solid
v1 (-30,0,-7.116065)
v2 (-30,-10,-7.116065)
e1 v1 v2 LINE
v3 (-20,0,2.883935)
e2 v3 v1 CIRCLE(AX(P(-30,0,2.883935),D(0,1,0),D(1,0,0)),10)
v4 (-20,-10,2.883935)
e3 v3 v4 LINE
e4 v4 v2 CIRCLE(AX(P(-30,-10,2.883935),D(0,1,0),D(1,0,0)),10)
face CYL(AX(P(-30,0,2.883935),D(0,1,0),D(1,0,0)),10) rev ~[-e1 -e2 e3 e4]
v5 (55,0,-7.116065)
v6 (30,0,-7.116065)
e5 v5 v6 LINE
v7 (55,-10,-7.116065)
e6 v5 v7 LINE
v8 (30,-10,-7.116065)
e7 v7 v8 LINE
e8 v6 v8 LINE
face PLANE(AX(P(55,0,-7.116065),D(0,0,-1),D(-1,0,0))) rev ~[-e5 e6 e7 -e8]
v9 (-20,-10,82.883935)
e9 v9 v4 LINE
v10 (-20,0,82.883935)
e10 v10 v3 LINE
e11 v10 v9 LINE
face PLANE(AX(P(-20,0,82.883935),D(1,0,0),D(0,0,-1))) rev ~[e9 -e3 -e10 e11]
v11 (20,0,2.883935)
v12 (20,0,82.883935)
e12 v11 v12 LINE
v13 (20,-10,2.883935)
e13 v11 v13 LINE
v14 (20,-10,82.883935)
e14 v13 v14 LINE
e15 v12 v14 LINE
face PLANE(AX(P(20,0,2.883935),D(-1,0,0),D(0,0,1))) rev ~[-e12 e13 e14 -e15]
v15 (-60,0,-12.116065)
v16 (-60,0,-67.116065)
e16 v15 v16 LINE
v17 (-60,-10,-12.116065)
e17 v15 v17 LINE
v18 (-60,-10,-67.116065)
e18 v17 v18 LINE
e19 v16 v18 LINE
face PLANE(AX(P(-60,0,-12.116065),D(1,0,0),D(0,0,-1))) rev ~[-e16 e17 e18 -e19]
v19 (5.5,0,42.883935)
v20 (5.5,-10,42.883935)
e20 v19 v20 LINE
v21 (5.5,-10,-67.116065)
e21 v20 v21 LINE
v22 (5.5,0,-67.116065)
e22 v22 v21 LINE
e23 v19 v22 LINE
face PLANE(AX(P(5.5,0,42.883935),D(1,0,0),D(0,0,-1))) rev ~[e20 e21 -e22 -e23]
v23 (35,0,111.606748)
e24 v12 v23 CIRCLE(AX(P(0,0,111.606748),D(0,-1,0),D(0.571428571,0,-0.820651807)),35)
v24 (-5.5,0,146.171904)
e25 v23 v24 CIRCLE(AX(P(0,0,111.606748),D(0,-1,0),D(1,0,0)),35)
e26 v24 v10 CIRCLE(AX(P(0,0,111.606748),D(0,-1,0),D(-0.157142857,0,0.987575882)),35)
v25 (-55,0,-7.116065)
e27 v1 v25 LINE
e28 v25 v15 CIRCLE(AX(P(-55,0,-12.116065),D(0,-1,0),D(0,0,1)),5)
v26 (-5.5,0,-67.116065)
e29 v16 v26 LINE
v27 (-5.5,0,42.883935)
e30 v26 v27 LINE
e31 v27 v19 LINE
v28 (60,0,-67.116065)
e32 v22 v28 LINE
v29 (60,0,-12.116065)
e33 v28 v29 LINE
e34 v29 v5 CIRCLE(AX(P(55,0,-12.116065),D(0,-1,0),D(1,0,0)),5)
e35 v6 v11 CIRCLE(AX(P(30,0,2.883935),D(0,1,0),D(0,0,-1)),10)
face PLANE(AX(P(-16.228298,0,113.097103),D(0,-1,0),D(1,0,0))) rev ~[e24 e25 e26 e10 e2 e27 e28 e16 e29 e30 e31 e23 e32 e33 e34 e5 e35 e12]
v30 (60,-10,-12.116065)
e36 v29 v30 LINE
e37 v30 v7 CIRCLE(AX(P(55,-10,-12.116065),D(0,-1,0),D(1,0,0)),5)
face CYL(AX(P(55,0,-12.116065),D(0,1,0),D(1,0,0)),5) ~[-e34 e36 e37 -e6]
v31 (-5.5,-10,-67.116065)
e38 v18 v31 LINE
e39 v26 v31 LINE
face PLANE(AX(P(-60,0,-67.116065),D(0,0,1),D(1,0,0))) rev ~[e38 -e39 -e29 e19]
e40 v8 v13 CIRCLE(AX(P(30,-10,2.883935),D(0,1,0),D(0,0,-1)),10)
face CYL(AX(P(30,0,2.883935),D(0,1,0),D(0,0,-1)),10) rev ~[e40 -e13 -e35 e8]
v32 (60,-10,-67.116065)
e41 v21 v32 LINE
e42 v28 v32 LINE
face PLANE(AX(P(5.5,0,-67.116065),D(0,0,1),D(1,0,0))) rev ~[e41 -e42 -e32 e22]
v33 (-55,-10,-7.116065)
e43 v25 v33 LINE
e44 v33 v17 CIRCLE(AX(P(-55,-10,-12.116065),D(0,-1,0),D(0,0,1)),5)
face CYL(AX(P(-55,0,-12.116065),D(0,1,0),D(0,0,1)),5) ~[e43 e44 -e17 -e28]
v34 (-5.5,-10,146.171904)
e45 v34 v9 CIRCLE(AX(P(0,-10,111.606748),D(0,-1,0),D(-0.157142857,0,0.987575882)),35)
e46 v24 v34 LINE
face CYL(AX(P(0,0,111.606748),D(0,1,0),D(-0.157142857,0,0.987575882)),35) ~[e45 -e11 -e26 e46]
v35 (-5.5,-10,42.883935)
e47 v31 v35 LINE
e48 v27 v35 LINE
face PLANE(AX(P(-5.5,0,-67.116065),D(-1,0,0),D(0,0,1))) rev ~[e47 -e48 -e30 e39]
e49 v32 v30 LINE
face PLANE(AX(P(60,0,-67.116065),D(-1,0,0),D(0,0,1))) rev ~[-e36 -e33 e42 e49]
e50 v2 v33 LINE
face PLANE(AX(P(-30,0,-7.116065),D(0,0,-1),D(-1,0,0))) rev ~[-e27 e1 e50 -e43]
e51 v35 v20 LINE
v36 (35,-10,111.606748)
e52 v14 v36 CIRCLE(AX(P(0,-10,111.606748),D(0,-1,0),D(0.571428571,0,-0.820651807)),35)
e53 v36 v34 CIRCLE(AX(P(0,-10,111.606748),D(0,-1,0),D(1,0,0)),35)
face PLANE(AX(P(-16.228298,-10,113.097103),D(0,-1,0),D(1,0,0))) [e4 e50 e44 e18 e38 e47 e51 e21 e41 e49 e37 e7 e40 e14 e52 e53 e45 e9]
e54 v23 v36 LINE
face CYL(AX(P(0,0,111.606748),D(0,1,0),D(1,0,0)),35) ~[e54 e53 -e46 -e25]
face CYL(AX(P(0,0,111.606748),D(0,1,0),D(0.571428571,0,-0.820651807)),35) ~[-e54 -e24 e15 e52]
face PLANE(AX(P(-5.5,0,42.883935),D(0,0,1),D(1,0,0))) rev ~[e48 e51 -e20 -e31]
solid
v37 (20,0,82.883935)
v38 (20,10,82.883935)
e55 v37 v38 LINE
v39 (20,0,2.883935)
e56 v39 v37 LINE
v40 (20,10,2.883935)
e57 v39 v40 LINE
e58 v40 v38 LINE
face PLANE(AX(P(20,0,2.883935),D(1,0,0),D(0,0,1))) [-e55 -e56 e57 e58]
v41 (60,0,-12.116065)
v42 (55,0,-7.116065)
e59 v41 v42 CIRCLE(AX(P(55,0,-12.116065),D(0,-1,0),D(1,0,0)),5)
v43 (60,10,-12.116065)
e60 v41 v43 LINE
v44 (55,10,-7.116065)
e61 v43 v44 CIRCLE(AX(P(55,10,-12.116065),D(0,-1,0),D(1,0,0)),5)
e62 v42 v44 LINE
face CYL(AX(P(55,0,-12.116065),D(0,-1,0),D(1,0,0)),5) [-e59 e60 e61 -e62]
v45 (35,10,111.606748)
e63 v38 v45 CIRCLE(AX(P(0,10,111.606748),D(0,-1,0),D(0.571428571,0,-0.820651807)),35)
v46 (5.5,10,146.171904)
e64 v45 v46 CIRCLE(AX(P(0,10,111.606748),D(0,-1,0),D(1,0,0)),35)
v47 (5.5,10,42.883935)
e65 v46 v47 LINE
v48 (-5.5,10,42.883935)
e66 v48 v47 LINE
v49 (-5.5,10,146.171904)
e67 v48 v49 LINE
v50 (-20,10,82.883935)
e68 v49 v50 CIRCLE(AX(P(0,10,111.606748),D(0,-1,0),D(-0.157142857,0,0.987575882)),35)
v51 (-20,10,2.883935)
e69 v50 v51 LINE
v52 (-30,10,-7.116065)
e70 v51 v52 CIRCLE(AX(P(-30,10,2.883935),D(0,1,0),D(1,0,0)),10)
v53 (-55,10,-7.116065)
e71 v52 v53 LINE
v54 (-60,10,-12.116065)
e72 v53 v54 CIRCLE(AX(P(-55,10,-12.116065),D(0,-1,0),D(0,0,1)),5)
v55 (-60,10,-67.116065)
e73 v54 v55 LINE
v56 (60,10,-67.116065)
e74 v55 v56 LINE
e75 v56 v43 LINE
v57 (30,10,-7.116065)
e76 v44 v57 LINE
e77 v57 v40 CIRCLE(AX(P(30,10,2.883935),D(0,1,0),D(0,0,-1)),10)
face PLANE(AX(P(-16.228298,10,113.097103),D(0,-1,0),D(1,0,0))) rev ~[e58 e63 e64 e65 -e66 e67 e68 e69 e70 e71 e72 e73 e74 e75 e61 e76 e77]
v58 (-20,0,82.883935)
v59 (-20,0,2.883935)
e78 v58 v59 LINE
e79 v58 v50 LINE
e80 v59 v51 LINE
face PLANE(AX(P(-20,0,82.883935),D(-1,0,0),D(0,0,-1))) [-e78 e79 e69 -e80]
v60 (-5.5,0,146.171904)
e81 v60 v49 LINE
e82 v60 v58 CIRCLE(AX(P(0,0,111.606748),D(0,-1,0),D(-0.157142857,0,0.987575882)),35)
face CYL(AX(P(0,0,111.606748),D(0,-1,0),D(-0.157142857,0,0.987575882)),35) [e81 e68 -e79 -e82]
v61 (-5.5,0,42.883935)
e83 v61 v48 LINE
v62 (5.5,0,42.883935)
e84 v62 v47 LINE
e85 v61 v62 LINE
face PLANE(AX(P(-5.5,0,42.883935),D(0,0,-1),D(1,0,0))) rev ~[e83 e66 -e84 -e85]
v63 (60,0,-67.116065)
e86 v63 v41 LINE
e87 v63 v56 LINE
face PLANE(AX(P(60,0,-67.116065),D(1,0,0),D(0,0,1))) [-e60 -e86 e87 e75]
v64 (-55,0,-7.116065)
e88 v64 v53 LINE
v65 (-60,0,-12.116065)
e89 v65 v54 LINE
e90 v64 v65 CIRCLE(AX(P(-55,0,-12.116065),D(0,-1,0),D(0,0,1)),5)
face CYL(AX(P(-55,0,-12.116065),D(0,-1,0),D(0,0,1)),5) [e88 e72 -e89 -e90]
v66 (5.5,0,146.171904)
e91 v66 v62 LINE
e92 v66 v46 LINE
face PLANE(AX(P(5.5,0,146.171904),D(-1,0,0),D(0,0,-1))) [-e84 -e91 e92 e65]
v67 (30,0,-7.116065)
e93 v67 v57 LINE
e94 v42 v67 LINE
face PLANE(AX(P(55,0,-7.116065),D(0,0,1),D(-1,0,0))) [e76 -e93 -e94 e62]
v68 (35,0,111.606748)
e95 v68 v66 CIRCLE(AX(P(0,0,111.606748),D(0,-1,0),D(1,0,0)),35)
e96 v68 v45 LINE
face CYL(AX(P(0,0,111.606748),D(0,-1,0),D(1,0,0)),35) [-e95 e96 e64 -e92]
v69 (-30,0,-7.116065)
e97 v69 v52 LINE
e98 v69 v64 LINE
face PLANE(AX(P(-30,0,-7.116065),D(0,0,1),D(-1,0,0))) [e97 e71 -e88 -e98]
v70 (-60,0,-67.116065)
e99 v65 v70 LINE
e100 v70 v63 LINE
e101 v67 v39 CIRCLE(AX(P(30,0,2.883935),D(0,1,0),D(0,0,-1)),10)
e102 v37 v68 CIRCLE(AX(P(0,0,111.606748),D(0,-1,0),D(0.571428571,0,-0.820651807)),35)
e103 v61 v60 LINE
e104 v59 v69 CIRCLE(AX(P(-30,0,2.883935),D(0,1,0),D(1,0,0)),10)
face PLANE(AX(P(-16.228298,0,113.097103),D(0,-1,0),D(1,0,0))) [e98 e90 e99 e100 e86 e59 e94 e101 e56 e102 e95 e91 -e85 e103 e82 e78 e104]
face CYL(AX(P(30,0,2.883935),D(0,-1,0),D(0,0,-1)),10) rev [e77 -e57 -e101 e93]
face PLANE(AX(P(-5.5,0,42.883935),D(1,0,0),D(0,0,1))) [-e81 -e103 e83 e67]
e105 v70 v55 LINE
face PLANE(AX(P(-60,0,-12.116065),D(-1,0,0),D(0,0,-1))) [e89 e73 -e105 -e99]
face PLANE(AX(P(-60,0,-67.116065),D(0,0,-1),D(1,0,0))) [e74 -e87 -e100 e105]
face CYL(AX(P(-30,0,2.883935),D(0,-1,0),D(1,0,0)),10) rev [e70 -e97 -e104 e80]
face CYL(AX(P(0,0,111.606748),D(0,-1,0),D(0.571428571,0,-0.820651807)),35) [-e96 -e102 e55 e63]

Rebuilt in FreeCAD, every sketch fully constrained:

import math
import FreeCAD as App
import Part
import Sketcher

V = App.Vector
Q = App.Units.Quantity

doc = App.newDocument("Part")
body = doc.addObject("PartDesign::Body", "Body")

# Sketch on XZ plane
sketch1 = body.newObject("Sketcher::SketchObject", "Sketch")
sketch1.AttachmentSupport = (doc.getObject("XZ_Plane"), [""])
sketch1.MapMode = "FlatFace"
sketch1.addGeometry([
    Part.ArcOfCircle(Part.Circle(V(0, 111.606748, 0), V(0, 0, 1), 35), math.radians(99.041096), math.radians(235.150095)),  # 0
    Part.LineSegment(V(-20, 82.883935, 0), V(-20, 2.883935, 0)),  # 1
    Part.ArcOfCircle(Part.Circle(V(-30, 2.883935, 0), V(0, 0, 1), 10), math.radians(-90), math.radians(0)),  # 2
    Part.LineSegment(V(-30, -7.116065, 0), V(-55, -7.116065, 0)),  # 3
    Part.ArcOfCircle(Part.Circle(V(-55, -12.116065, 0), V(0, 0, 1), 5), math.radians(90), math.radians(180)),  # 4
    Part.LineSegment(V(-60, -12.116065, 0), V(-60, -67.116065, 0)),  # 5
    Part.LineSegment(V(-60, -67.116065, 0), V(-5.5, -67.116065, 0)),  # 6
    Part.LineSegment(V(-5.5, -67.116065, 0), V(-5.5, 42.883935, 0)),  # 7
    Part.LineSegment(V(-5.5, 42.883935, 0), V(5.5, 42.883935, 0)),  # 8
    Part.LineSegment(V(5.5, 42.883935, 0), V(5.5, -67.116065, 0)),  # 9
    Part.LineSegment(V(5.5, -67.116065, 0), V(60, -67.116065, 0)),  # 10
    Part.LineSegment(V(60, -67.116065, 0), V(60, -12.116065, 0)),  # 11
    Part.ArcOfCircle(Part.Circle(V(55, -12.116065, 0), V(0, 0, 1), 5), math.radians(0), math.radians(90)),  # 12
    Part.LineSegment(V(55, -7.116065, 0), V(30, -7.116065, 0)),  # 13
    Part.ArcOfCircle(Part.Circle(V(30, 2.883935, 0), V(0, 0, 1), 10), math.radians(180), math.radians(270)),  # 14
    Part.LineSegment(V(20, 2.883935, 0), V(20, 82.883935, 0)),  # 15
    Part.ArcOfCircle(Part.Circle(V(0, 111.606748, 0), V(0, 0, 1), 35), math.radians(-55.150095), math.radians(0)),  # 16
    Part.ArcOfCircle(Part.Circle(V(0, 111.606748, 0), V(0, 0, 1), 35), math.radians(0), math.radians(99.041096)),  # 17
], False)
sketch1.addConstraint([
    Sketcher.Constraint("Coincident", 0, 2, 1, 1),
    Sketcher.Constraint("Tangent", 1, 2, 2, 2),
    Sketcher.Constraint("Tangent", 2, 1, 3, 1),
    Sketcher.Constraint("Tangent", 3, 2, 4, 1),
    Sketcher.Constraint("Tangent", 4, 2, 5, 1),
    Sketcher.Constraint("Coincident", 5, 2, 6, 1),
    Sketcher.Constraint("Coincident", 6, 2, 7, 1),
    Sketcher.Constraint("Coincident", 7, 2, 8, 1),
    Sketcher.Constraint("Coincident", 8, 2, 9, 1),
    Sketcher.Constraint("Coincident", 9, 2, 10, 1),
    Sketcher.Constraint("Coincident", 10, 2, 11, 1),
    Sketcher.Constraint("Tangent", 11, 2, 12, 1),
    Sketcher.Constraint("Tangent", 12, 2, 13, 1),
    Sketcher.Constraint("Tangent", 13, 2, 14, 2),
    Sketcher.Constraint("Tangent", 14, 1, 15, 1),
    Sketcher.Constraint("Coincident", 15, 2, 16, 1),
    Sketcher.Constraint("Tangent", 16, 2, 17, 1),
    Sketcher.Constraint("Tangent", 17, 2, 0, 1),
    Sketcher.Constraint("Vertical", 1),
    Sketcher.Constraint("Horizontal", 3),
    Sketcher.Constraint("Vertical", 5),
    Sketcher.Constraint("Horizontal", 6),
    Sketcher.Constraint("Vertical", 7),
    Sketcher.Constraint("Horizontal", 8),
    Sketcher.Constraint("Vertical", 9),
    Sketcher.Constraint("Horizontal", 10),
    Sketcher.Constraint("Vertical", 11),
    Sketcher.Constraint("Horizontal", 13),
    Sketcher.Constraint("Vertical", 15),
    Sketcher.Constraint("Coincident", 16, 3, 0, 3),
    Sketcher.Constraint("Equal", 4, 12),
    Sketcher.Constraint("Equal", 2, 14),
    Sketcher.Constraint("Symmetric", 4, 3, 12, 3, -2),
    Sketcher.Constraint("Symmetric", 6, 2, 9, 2, -2),
    Sketcher.Constraint("Symmetric", 0, 2, 15, 2, -2),
    Sketcher.Constraint("Horizontal", 17, 3, 16, 2),
    Sketcher.Constraint("Vertical", 7, 2, 17, 2),
    Sketcher.Constraint("Radius", 0, Q("35 mm")),
    Sketcher.Constraint("Radius", 2, Q("10 mm")),
    Sketcher.Constraint("Radius", 4, Q("5 mm")),
    Sketcher.Constraint("DistanceX", 3, 2, 3, 1, Q("25 mm")),
    Sketcher.Constraint("DistanceX", 8, 1, 8, 2, Q("11 mm")),
    Sketcher.Constraint("DistanceY", 1, 2, 1, 1, Q("80 mm")),
    Sketcher.Constraint("DistanceY", 5, 2, 5, 1, Q("55 mm")),
    Sketcher.Constraint("DistanceY", 7, 1, 7, 2, Q("110 mm")),
    Sketcher.Constraint("DistanceX", 6, 1, 6, 2, Q("54.5 mm")),
    Sketcher.Constraint("DistanceY", -1, 1, 0, 3, Q("111.606748 mm")),
])
pad1 = body.newObject("PartDesign::Pad", "Pad")
pad1.Profile = sketch1
pad1.Length = 10
body2 = doc.addObject("PartDesign::Body", "Body001")

# Sketch on XZ plane
sketch2 = body2.newObject("Sketcher::SketchObject", "Sketch001")
sketch2.AttachmentSupport = (doc.getObject("XZ_Plane001"), [""])
sketch2.MapMode = "FlatFace"
sketch2.addGeometry([
    Part.ArcOfCircle(Part.Circle(V(0, 111.606748, 0), V(0, 0, 1), 35), math.radians(99.041096), math.radians(235.150095)),  # 0
    Part.LineSegment(V(-20, 82.883935, 0), V(-20, 2.883935, 0)),  # 1
    Part.ArcOfCircle(Part.Circle(V(-30, 2.883935, 0), V(0, 0, 1), 10), math.radians(-90), math.radians(0)),  # 2
    Part.LineSegment(V(-30, -7.116065, 0), V(-55, -7.116065, 0)),  # 3
    Part.ArcOfCircle(Part.Circle(V(-55, -12.116065, 0), V(0, 0, 1), 5), math.radians(90), math.radians(180)),  # 4
    Part.LineSegment(V(-60, -12.116065, 0), V(-60, -67.116065, 0)),  # 5
    Part.LineSegment(V(-60, -67.116065, 0), V(60, -67.116065, 0)),  # 6
    Part.LineSegment(V(60, -67.116065, 0), V(60, -12.116065, 0)),  # 7
    Part.ArcOfCircle(Part.Circle(V(55, -12.116065, 0), V(0, 0, 1), 5), math.radians(0), math.radians(90)),  # 8
    Part.LineSegment(V(55, -7.116065, 0), V(30, -7.116065, 0)),  # 9
    Part.ArcOfCircle(Part.Circle(V(30, 2.883935, 0), V(0, 0, 1), 10), math.radians(180), math.radians(270)),  # 10
    Part.LineSegment(V(20, 2.883935, 0), V(20, 82.883935, 0)),  # 11
    Part.ArcOfCircle(Part.Circle(V(0, 111.606748, 0), V(0, 0, 1), 35), math.radians(-55.150095), math.radians(0)),  # 12
    Part.ArcOfCircle(Part.Circle(V(0, 111.606748, 0), V(0, 0, 1), 35), math.radians(0), math.radians(80.958904)),  # 13
    Part.LineSegment(V(5.5, 146.171904, 0), V(5.5, 42.883935, 0)),  # 14
    Part.LineSegment(V(5.5, 42.883935, 0), V(-5.5, 42.883935, 0)),  # 15
    Part.LineSegment(V(-5.5, 42.883935, 0), V(-5.5, 146.171904, 0)),  # 16
], False)
sketch2.addConstraint([
    Sketcher.Constraint("Coincident", 0, 2, 1, 1),
    Sketcher.Constraint("Tangent", 1, 2, 2, 2),
    Sketcher.Constraint("Tangent", 2, 1, 3, 1),
    Sketcher.Constraint("Tangent", 3, 2, 4, 1),
    Sketcher.Constraint("Tangent", 4, 2, 5, 1),
    Sketcher.Constraint("Coincident", 5, 2, 6, 1),
    Sketcher.Constraint("Coincident", 6, 2, 7, 1),
    Sketcher.Constraint("Tangent", 7, 2, 8, 1),
    Sketcher.Constraint("Tangent", 8, 2, 9, 1),
    Sketcher.Constraint("Tangent", 9, 2, 10, 2),
    Sketcher.Constraint("Tangent", 10, 1, 11, 1),
    Sketcher.Constraint("Coincident", 11, 2, 12, 1),
    Sketcher.Constraint("Tangent", 12, 2, 13, 1),
    Sketcher.Constraint("Coincident", 13, 2, 14, 1),
    Sketcher.Constraint("Coincident", 14, 2, 15, 1),
    Sketcher.Constraint("Coincident", 15, 2, 16, 1),
    Sketcher.Constraint("Coincident", 16, 2, 0, 1),
    Sketcher.Constraint("Vertical", 1),
    Sketcher.Constraint("Horizontal", 3),
    Sketcher.Constraint("Vertical", 5),
    Sketcher.Constraint("Horizontal", 6),
    Sketcher.Constraint("Vertical", 7),
    Sketcher.Constraint("Horizontal", 9),
    Sketcher.Constraint("Vertical", 11),
    Sketcher.Constraint("Vertical", 14),
    Sketcher.Constraint("Horizontal", 15),
    Sketcher.Constraint("Vertical", 16),
    Sketcher.Constraint("Coincident", 12, 3, 0, 3),
    Sketcher.Constraint("Equal", 4, 8),
    Sketcher.Constraint("Equal", 2, 10),
    Sketcher.Constraint("Equal", 0, 12),
    Sketcher.Constraint("Equal", 12, 13),
    Sketcher.Constraint("Symmetric", 4, 3, 8, 3, -2),
    Sketcher.Constraint("Symmetric", 0, 2, 11, 2, -2),
    Sketcher.Constraint("Horizontal", 13, 3, 12, 2),
    Sketcher.Constraint("Horizontal", 13, 2, 16, 2),
    Sketcher.Constraint("Radius", 0, Q("35 mm")),
    Sketcher.Constraint("Radius", 2, Q("10 mm")),
    Sketcher.Constraint("Radius", 4, Q("5 mm")),
    Sketcher.Constraint("DistanceX", 3, 2, 3, 1, Q("25 mm")),
    Sketcher.Constraint("DistanceX", 6, 1, 6, 2, Q("120 mm")),
    Sketcher.Constraint("DistanceX", 15, 2, 15, 1, Q("11 mm")),
    Sketcher.Constraint("DistanceY", 1, 2, 1, 1, Q("80 mm")),
    Sketcher.Constraint("DistanceY", 5, 2, 5, 1, Q("55 mm")),
    Sketcher.Constraint("DistanceY", 10, 1, 14, 2, Q("40 mm")),
    Sketcher.Constraint("DistanceY", -1, 1, 0, 3, Q("111.606748 mm")),
])
pad2 = body2.newObject("PartDesign::Pad", "Pad001")
pad2.Profile = sketch2
pad2.Length = 10
pad2.Reversed = True

doc.recompute()
